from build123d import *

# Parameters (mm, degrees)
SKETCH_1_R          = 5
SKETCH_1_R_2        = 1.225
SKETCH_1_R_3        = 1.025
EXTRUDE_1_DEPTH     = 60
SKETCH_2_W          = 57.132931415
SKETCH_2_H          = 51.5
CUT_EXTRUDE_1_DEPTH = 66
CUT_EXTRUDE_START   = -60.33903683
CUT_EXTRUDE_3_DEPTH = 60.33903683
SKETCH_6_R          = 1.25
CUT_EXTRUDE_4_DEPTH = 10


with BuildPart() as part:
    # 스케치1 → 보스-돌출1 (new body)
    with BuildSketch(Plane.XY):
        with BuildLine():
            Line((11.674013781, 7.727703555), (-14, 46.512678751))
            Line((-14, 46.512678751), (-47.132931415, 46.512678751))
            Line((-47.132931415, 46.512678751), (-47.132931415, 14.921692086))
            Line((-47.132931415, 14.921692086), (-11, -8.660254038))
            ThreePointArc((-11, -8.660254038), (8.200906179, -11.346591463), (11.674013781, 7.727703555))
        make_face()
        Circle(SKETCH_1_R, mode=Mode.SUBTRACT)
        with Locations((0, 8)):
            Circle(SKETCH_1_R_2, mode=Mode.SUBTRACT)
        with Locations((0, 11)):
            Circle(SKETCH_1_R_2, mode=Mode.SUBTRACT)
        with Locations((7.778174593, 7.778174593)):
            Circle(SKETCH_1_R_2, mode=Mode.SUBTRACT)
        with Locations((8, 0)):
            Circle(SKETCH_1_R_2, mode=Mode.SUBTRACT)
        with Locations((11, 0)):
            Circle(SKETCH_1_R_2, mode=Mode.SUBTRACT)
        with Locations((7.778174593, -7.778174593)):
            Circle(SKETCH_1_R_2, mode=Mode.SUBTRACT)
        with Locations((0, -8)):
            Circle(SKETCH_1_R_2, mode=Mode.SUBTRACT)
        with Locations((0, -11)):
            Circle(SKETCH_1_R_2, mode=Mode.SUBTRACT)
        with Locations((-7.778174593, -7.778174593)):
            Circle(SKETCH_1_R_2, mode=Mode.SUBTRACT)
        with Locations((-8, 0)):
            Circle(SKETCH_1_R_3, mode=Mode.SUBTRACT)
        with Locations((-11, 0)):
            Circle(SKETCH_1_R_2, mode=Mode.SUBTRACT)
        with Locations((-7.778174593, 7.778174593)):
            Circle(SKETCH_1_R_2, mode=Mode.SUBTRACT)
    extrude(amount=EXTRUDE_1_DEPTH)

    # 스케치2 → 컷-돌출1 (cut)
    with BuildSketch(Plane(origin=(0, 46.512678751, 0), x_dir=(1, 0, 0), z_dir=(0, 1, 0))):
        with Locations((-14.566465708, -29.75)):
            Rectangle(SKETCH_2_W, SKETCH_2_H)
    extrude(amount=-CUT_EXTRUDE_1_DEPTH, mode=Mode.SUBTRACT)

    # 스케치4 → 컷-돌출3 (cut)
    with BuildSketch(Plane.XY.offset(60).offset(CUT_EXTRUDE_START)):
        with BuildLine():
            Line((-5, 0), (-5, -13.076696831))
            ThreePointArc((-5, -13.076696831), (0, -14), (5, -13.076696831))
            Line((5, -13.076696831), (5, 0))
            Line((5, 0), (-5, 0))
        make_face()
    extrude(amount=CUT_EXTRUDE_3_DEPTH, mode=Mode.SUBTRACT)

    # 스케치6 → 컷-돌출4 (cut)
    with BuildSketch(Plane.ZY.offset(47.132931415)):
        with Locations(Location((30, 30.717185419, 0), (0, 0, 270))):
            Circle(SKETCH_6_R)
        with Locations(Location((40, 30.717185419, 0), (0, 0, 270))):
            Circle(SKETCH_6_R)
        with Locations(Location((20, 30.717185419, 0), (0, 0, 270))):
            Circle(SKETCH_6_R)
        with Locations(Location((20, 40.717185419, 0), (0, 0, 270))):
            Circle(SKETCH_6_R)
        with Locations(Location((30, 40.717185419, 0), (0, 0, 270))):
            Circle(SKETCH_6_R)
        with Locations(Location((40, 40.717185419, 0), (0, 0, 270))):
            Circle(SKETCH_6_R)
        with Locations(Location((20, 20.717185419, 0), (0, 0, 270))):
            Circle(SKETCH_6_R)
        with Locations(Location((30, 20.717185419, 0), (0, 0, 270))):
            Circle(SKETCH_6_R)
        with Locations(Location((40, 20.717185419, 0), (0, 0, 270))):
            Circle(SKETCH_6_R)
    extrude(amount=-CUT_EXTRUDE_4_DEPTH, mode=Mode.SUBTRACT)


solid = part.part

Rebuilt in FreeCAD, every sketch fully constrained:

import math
import FreeCAD as App
import Part
import Sketcher
Q = App.Units.Quantity

doc = App.newDocument("Part")
body = doc.addObject("PartDesign::Body", "Body")

# Sketch on XY plane
sketch1 = body.newObject("Sketcher::SketchObject", "Sketch")
sketch1.AttachmentSupport = (doc.getObject("XY_Plane"), [""])
sketch1.MapMode = "FlatFace"
sketch1.addGeometry([
    Part.LineSegment(App.Vector(11.7, 7.7, 0), App.Vector(-14, 46.5, 0)),  # 0
    Part.LineSegment(App.Vector(-14, 46.5, 0), App.Vector(-47.1, 46.5, 0)),  # 1
    Part.LineSegment(App.Vector(-47.1, 46.5, 0), App.Vector(-47.1, 14.9, 0)),  # 2
    Part.LineSegment(App.Vector(-47.1, 14.9, 0), App.Vector(-11, -8.7, 0)),  # 3
    Part.ArcOfCircle(Part.Circle(App.Vector(0, 0, 0), App.Vector(0, 0, 1), 14), math.radians(-142), math.radians(34)),  # 4
    Part.Circle(App.Vector(-7.8, -7.8, 0), App.Vector(0, 0, 1), 1.2),  # 5
    Part.Circle(App.Vector(0, -11, 0), App.Vector(0, 0, 1), 1.2),  # 6
    Part.Circle(App.Vector(0, -8, 0), App.Vector(0, 0, 1), 1.2),  # 7
    Part.Circle(App.Vector(7.8, -7.8, 0), App.Vector(0, 0, 1), 1.2),  # 8
    Part.Circle(App.Vector(-11, 0, 0), App.Vector(0, 0, 1), 1.2),  # 9
    Part.Circle(App.Vector(-8, 0, 0), App.Vector(0, 0, 1), 1),  # 10
    Part.Circle(App.Vector(0, 0, 0), App.Vector(0, 0, 1), 5),  # 11
    Part.Circle(App.Vector(-7.8, 7.8, 0), App.Vector(0, 0, 1), 1.2),  # 12
    Part.Circle(App.Vector(0, 8, 0), App.Vector(0, 0, 1), 1.2),  # 13
    Part.Circle(App.Vector(0, 11, 0), App.Vector(0, 0, 1), 1.2),  # 14
    Part.Circle(App.Vector(8, 0, 0), App.Vector(0, 0, 1), 1.2),  # 15
    Part.Circle(App.Vector(11, 0, 0), App.Vector(0, 0, 1), 1.2),  # 16
    Part.Circle(App.Vector(7.8, 7.8, 0), App.Vector(0, 0, 1), 1.2),  # 17
], False)
sketch1.addConstraint([
    Sketcher.Constraint("Coincident", 0, 2, 1, 1),
    Sketcher.Constraint("Coincident", 1, 2, 2, 1),
    Sketcher.Constraint("Coincident", 2, 2, 3, 1),
    Sketcher.Constraint("Coincident", 3, 2, 4, 1),
    Sketcher.Constraint("Tangent", 4, 2, 0, 1),
    Sketcher.Constraint("Horizontal", 1),
    Sketcher.Constraint("Vertical", 2),
    Sketcher.Constraint("Coincident", 4, 3, -1, 1),
    Sketcher.Constraint("Coincident", 11, 3, -1, 1),
    Sketcher.Constraint("Equal", 5, 6),
    Sketcher.Constraint("Equal", 6, 7),
    Sketcher.Constraint("Equal", 7, 8),
    Sketcher.Constraint("Equal", 8, 9),
    Sketcher.Constraint("Equal", 9, 12),
    Sketcher.Constraint("Equal", 12, 13),
    Sketcher.Constraint("Equal", 13, 14),
    Sketcher.Constraint("Equal", 14, 15),
    Sketcher.Constraint("Equal", 15, 16),
    Sketcher.Constraint("Equal", 16, 17),
    Sketcher.Constraint("Symmetric", 8, 3, 12, 3, -1, 1),
    Sketcher.Constraint("Symmetric", 7, 3, 13, 3, -1, 1),
    Sketcher.Constraint("Symmetric", 6, 3, 14, 3, -1, 1),
    Sketcher.Constraint("Symmetric", 10, 3, 15, 3, -1, 1),
    Sketcher.Constraint("Symmetric", 9, 3, 16, 3, -1, 1),
    Sketcher.Constraint("Symmetric", 5, 3, 17, 3, -1, 1),
    Sketcher.Constraint("Symmetric", 5, 3, 8, 3, -2),
    Sketcher.Constraint("PointOnObject", 6, 3, -2),
    Sketcher.Constraint("PointOnObject", 7, 3, -2),
    Sketcher.Constraint("PointOnObject", 9, 3, -1),
    Sketcher.Constraint("PointOnObject", 10, 3, -1),
    Sketcher.Constraint("Vertical", 9, 3, 3, 2),
    Sketcher.Constraint("Diameter", 11, Q("10 mm")),
    Sketcher.Constraint("Radius", 4, Q("14 mm")),
    Sketcher.Constraint("Diameter", 5, Q("2.45 mm")),
    Sketcher.Constraint("Diameter", 10, Q("2.05 mm")),
    Sketcher.Constraint("DistanceY", 6, 3, -1, 1, Q("11 mm")),
    Sketcher.Constraint("DistanceY", 7, 3, -1, 1, Q("8 mm")),
    Sketcher.Constraint("DistanceX", 9, 3, -1, 1, Q("11 mm")),
    Sketcher.Constraint("DistanceX", 10, 3, -1, 1, Q("8 mm")),
    Sketcher.Constraint("DistanceX", 0, 2, -1, 1, Q("14 mm")),
    Sketcher.Constraint("DistanceX", 1, 2, 1, 1, Q("33.132931 mm")),
    Sketcher.Constraint("Distance", 0, Q("46.512679 mm")),
    Sketcher.Constraint("DistanceY", 2, 2, 2, 1, Q("31.590987 mm")),
    Sketcher.Constraint("DistanceX", 5, 3, 8, 3, Q("15.556349 mm")),
    Sketcher.Constraint("DistanceY", 5, 3, 12, 3, Q("15.556349 mm")),
])
pad1 = body.newObject("PartDesign::Pad", "Pad")
pad1.Profile = sketch1
pad1.Length = 60

# Sketch on XZ plane
sketch2 = body.newObject("Sketcher::SketchObject", "Sketch001")
sketch2.AttachmentSupport = (doc.getObject("XZ_Plane"), [""])
sketch2.MapMode = "FlatFace"
sketch2.AttachmentOffset = App.Placement(App.Vector(0, 0, -46.512679), App.Rotation())
sketch2.addGeometry([
    Part.LineSegment(App.Vector(-43, 4, 0), App.Vector(-43, 56, 0)),
    Part.LineSegment(App.Vector(-43, 56, 0), App.Vector(14, 56, 0)),
    Part.LineSegment(App.Vector(14, 56, 0), App.Vector(14, 4, 0)),
    Part.LineSegment(App.Vector(14, 4, 0), App.Vector(-43, 4, 0)),
], False)
sketch2.addConstraint([
    Sketcher.Constraint("Coincident", 0, 2, 1, 1),
    Sketcher.Constraint("Coincident", 1, 2, 2, 1),
    Sketcher.Constraint("Coincident", 2, 2, 3, 1),
    Sketcher.Constraint("Coincident", 3, 2, 0, 1),
    Sketcher.Constraint("Vertical", 0),
    Sketcher.Constraint("Horizontal", 1),
    Sketcher.Constraint("Vertical", 2),
    Sketcher.Constraint("Horizontal", 3),
    Sketcher.Constraint("DistanceY", 0, 1, 0, 2, Q("51.5 mm")),
    Sketcher.Constraint("DistanceX", -1, 1, 1, 2, Q("14 mm")),
    Sketcher.Constraint("DistanceY", -1, 1, 2, 2, Q("4 mm")),
    Sketcher.Constraint("DistanceX", 1, 1, 1, 2, Q("57.132931 mm")),
])
pocket1 = body.newObject("PartDesign::Pocket", "Pocket")
pocket1.Profile = sketch2
pocket1.Length = 66
pocket1.Reversed = True

# Sketch on XY plane
sketch3 = body.newObject("Sketcher::SketchObject", "Sketch002")
sketch3.AttachmentSupport = (doc.getObject("XY_Plane"), [""])
sketch3.MapMode = "FlatFace"
sketch3.AttachmentOffset = App.Placement(App.Vector(0, 0, -0.339037), App.Rotation())
sketch3.addGeometry([
    Part.LineSegment(App.Vector(-5, 0, 0), App.Vector(-5, -13, 0)),
    Part.ArcOfCircle(Part.Circle(App.Vector(0, 0, 0), App.Vector(0, 0, 1), 14), math.radians(-111), math.radians(-69)),
    Part.LineSegment(App.Vector(5, -13, 0), App.Vector(5, 0, 0)),
    Part.LineSegment(App.Vector(5, 0, 0), App.Vector(-5, 0, 0)),
], False)
sketch3.addConstraint([
    Sketcher.Constraint("Coincident", 0, 2, 1, 1),
    Sketcher.Constraint("Coincident", 1, 2, 2, 1),
    Sketcher.Constraint("Coincident", 2, 2, 3, 1),
    Sketcher.Constraint("Coincident", 3, 2, 0, 1),
    Sketcher.Constraint("Vertical", 0),
    Sketcher.Constraint("Vertical", 2),
    Sketcher.Constraint("Horizontal", 3),
    Sketcher.Constraint("Coincident", 1, 3, -1, 1),
    Sketcher.Constraint("Symmetric", 2, 2, 3, 2, -1, 1),
    Sketcher.Constraint("Radius", 1, Q("14 mm")),
    Sketcher.Constraint("DistanceX", 3, 2, 3, 1, Q("10 mm")),
])
pocket2 = body.newObject("PartDesign::Pocket", "Pocket001")
pocket2.Profile = sketch3
pocket2.Length = 60.339037
pocket2.Reversed = True

# Sketch on YZ plane
sketch4 = body.newObject("Sketcher::SketchObject", "Sketch003")
sketch4.AttachmentSupport = (doc.getObject("YZ_Plane"), [""])
sketch4.MapMode = "FlatFace"
sketch4.AttachmentOffset = App.Placement(App.Vector(0, 0, -47.132931), App.Rotation())
sketch4.addGeometry([
    Part.Circle(App.Vector(30.7, 30, 0), App.Vector(0, 0, 1), 1.2),  # 0
    Part.Circle(App.Vector(30.7, 40, 0), App.Vector(0, 0, 1), 1.2),  # 1
    Part.Circle(App.Vector(30.7, 20, 0), App.Vector(0, 0, 1), 1.2),  # 2
    Part.Circle(App.Vector(40.7, 20, 0), App.Vector(0, 0, 1), 1.2),  # 3
    Part.Circle(App.Vector(40.7, 30, 0), App.Vector(0, 0, 1), 1.2),  # 4
    Part.Circle(App.Vector(40.7, 40, 0), App.Vector(0, 0, 1), 1.2),  # 5
    Part.Circle(App.Vector(20.7, 20, 0), App.Vector(0, 0, 1), 1.2),  # 6
    Part.Circle(App.Vector(20.7, 30, 0), App.Vector(0, 0, 1), 1.2),  # 7
    Part.Circle(App.Vector(20.7, 40, 0), App.Vector(0, 0, 1), 1.2),  # 8
], False)
sketch4.addConstraint([
    Sketcher.Constraint("Equal", 0, 1),
    Sketcher.Constraint("Equal", 1, 2),
    Sketcher.Constraint("Equal", 2, 3),
    Sketcher.Constraint("Equal", 3, 4),
    Sketcher.Constraint("Equal", 4, 5),
    Sketcher.Constraint("Equal", 5, 6),
    Sketcher.Constraint("Equal", 6, 7),
    Sketcher.Constraint("Equal", 7, 8),
    Sketcher.Constraint("Horizontal", 2, 3, 3, 3),
    Sketcher.Constraint("Horizontal", 0, 3, 4, 3),
    Sketcher.Constraint("Horizontal", 1, 3, 5, 3),
    Sketcher.Constraint("Horizontal", 3, 3, 6, 3),
    Sketcher.Constraint("Horizontal", 4, 3, 7, 3),
    Sketcher.Constraint("Horizontal", 5, 3, 8, 3),
    Sketcher.Constraint("Vertical", 0, 3, 1, 3),
    Sketcher.Constraint("Vertical", 1, 3, 2, 3),
    Sketcher.Constraint("Vertical", 3, 3, 4, 3),
    Sketcher.Constraint("Vertical", 4, 3, 5, 3),
    Sketcher.Constraint("Vertical", 6, 3, 7, 3),
    Sketcher.Constraint("Vertical", 7, 3, 8, 3),
    Sketcher.Constraint("Diameter", 0, Q("2.5 mm")),
    Sketcher.Constraint("DistanceY", -1, 1, 0, 3, Q("30 mm")),
    Sketcher.Constraint("DistanceY", -1, 1, 1, 3, Q("40 mm")),
    Sketcher.Constraint("DistanceY", -1, 1, 2, 3, Q("20 mm")),
    Sketcher.Constraint("DistanceX", 2, 3, 3, 3, Q("10 mm")),
    Sketcher.Constraint("DistanceX", 6, 3, 2, 3, Q("10 mm")),
    Sketcher.Constraint("DistanceX", -1, 1, 0, 3, Q("30.717185 mm")),
])
pocket3 = body.newObject("PartDesign::Pocket", "Pocket002")
pocket3.Profile = sketch4
pocket3.Length = 10
pocket3.Reversed = True

doc.recompute()
